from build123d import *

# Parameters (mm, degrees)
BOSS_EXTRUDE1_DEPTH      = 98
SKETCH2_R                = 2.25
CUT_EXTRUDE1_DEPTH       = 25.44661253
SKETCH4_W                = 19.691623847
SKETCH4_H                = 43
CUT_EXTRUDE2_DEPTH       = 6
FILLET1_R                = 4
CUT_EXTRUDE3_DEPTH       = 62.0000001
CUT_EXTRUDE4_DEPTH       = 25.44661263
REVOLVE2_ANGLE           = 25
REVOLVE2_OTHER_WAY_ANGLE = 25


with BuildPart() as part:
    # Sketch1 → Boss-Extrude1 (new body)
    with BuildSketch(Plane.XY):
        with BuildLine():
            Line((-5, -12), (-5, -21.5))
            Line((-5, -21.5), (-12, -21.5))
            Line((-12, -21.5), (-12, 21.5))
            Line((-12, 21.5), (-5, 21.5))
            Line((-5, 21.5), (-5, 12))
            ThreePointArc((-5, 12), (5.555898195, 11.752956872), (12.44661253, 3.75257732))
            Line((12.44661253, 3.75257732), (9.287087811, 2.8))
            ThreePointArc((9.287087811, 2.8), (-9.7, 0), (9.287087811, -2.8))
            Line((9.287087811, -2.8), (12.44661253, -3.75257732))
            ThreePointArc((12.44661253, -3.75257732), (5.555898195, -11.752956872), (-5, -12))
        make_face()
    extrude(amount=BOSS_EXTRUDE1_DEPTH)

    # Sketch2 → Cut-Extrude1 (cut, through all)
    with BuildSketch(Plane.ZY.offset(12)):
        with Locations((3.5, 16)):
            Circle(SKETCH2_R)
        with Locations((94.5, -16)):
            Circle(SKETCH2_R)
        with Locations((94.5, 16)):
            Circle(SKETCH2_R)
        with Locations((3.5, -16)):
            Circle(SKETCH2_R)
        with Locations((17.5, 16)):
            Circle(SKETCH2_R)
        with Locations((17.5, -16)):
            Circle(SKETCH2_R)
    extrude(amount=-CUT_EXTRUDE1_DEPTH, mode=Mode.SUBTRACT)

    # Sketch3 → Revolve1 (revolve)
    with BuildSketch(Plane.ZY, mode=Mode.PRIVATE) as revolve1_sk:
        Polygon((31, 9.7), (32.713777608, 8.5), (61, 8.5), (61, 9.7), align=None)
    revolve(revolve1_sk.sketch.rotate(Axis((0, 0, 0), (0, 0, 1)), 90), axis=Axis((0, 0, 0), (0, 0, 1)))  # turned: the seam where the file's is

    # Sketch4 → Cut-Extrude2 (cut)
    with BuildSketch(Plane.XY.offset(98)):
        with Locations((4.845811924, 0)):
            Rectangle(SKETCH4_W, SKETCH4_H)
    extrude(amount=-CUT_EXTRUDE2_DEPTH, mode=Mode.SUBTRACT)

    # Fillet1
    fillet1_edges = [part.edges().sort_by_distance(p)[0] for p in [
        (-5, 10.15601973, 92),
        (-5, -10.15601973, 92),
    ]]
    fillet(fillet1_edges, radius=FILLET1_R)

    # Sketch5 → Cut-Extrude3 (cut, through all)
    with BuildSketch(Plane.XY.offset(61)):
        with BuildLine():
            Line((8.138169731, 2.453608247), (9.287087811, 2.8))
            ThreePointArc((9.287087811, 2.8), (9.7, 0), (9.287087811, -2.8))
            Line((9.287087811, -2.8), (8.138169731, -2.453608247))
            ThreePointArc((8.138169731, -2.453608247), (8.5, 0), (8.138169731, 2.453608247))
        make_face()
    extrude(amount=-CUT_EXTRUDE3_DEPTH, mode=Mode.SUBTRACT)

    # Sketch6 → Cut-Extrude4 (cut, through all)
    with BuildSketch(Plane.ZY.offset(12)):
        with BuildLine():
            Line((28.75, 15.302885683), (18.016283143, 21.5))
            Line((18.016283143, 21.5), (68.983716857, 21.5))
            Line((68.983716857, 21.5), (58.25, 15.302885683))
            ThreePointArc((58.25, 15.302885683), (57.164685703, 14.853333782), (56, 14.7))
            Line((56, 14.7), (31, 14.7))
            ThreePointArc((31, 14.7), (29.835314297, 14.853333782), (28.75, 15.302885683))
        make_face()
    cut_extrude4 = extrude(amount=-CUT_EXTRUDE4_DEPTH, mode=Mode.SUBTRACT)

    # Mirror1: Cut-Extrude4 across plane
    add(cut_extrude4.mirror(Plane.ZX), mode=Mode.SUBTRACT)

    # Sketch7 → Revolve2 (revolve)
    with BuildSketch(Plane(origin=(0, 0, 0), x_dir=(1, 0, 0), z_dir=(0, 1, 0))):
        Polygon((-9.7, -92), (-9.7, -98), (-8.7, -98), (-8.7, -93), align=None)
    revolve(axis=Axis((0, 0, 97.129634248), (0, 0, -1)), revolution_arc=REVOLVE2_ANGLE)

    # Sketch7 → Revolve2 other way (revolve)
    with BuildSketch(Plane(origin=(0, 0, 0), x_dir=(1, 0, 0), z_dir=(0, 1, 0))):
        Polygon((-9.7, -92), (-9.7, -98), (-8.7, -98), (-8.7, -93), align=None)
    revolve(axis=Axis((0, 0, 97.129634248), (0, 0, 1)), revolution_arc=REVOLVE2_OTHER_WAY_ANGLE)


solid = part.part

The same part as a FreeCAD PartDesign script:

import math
import FreeCAD as App
import Part
import Sketcher
from FreeCAD import Vector
Q = App.Units.Quantity


def edges_at(feature, points):
    """Names of the edges that pass closest to the given points."""
    edges = feature.Shape.Edges
    near = lambda p: min(range(len(edges)), key=lambda i: edges[i].distToShape(Part.Vertex(*p))[0])
    return sorted({f"Edge{near(p) + 1}" for p in points})


def add_polygon(sketch, points):
    """Adds a closed chain of lines whose ends are joined by coincident constraints."""
    first, n = sketch.GeometryCount, len(points)
    for a, b in zip(points, points[1:] + points[:1]):
        sketch.addGeometry(Part.LineSegment(App.Vector(*a, 0), App.Vector(*b, 0)), False)
    for i in range(n):
        sketch.addConstraint(Sketcher.Constraint("Coincident", first + i, 2, first + (i + 1) % n, 1))

doc = App.newDocument("Part")
body = doc.addObject("PartDesign::Body", "Body")

# Sketch on XY plane
sketch1 = doc.addObject("Sketcher::SketchObject", "Sketch")
body.addObject(sketch1)
sketch1.AttachmentSupport = (doc.XY_Plane, [""])
sketch1.MapMode = "FlatFace"
sketch1.addGeometry([
    Part.LineSegment(Vector(-5, -21.5, 0), Vector(-5, -12, 0)),  # 0
    Part.ArcOfCircle(Part.Circle(Vector(0, 0, 0), Vector(0, 0, 1), 13), math.radians(-113), math.radians(-17)),  # 1
    Part.LineSegment(Vector(12.4, -3.8, 0), Vector(9.3, -2.8, 0)),  # 2
    Part.ArcOfCircle(Part.Circle(Vector(0, 0, 0), Vector(0, 0, 1), 9.7), math.radians(17), math.radians(343)),  # 3
    Part.LineSegment(Vector(9.3, 2.8, 0), Vector(12.4, 3.8, 0)),  # 4
    Part.ArcOfCircle(Part.Circle(Vector(0, 0, 0), Vector(0, 0, 1), 13), math.radians(17), math.radians(113)),  # 5
    Part.LineSegment(Vector(-5, 12, 0), Vector(-5, 21.5, 0)),  # 6
    Part.LineSegment(Vector(-5, 21.5, 0), Vector(-12, 21.5, 0)),  # 7
    Part.LineSegment(Vector(-12, 21.5, 0), Vector(-12, -21.5, 0)),  # 8
    Part.LineSegment(Vector(-12, -21.5, 0), Vector(-5, -21.5, 0)),  # 9
], False)
sketch1.addConstraint([
    Sketcher.Constraint("Coincident", 0, 2, 1, 1),
    Sketcher.Constraint("Coincident", 1, 2, 2, 1),
    Sketcher.Constraint("Coincident", 2, 2, 3, 2),
    Sketcher.Constraint("Coincident", 3, 1, 4, 1),
    Sketcher.Constraint("Coincident", 4, 2, 5, 1),
    Sketcher.Constraint("Coincident", 5, 2, 6, 1),
    Sketcher.Constraint("Coincident", 6, 2, 7, 1),
    Sketcher.Constraint("Coincident", 7, 2, 8, 1),
    Sketcher.Constraint("Coincident", 8, 2, 9, 1),
    Sketcher.Constraint("Coincident", 9, 2, 0, 1),
    Sketcher.Constraint("Vertical", 0),
    Sketcher.Constraint("Vertical", 6),
    Sketcher.Constraint("Horizontal", 7),
    Sketcher.Constraint("Vertical", 8),
    Sketcher.Constraint("Horizontal", 9),
    Sketcher.Constraint("Coincident", 1, 3, -1, 1),
    Sketcher.Constraint("Coincident", 3, 3, -1, 1),
    Sketcher.Constraint("Coincident", 5, 3, -1, 1),
    Sketcher.Constraint("Equal", 1, 5),
    Sketcher.Constraint("Symmetric", 6, 2, 9, 2, -1),
    Sketcher.Constraint("Vertical", 2, 2, 3, 1),
    Sketcher.Constraint("Vertical", 1, 2, 4, 2),
    Sketcher.Constraint("Radius", 1, 13.0),
    Sketcher.Constraint("Radius", 3, 9.7),
    Sketcher.Constraint("DistanceX", 7, 2, 7, 1, 7.0),
    Sketcher.Constraint("DistanceY", 8, 2, 8, 1, 43.0),
    Sketcher.Constraint("DistanceY", 0, 1, 0, 2, 9.5),
    Sketcher.Constraint("DistanceY", 2, 2, -1, 1, 2.8),
    Sketcher.Constraint("DistanceX", -1, 1, 1, 2, 12.446613),
])
pad1 = doc.addObject("PartDesign::Pad", "Pad")
body.addObject(pad1)
pad1.Profile = sketch1
pad1.Length = 98

# Sketch on YZ plane
sketch2 = doc.addObject("Sketcher::SketchObject", "Sketch001")
body.addObject(sketch2)
sketch2.AttachmentSupport = (doc.YZ_Plane, [""])
sketch2.MapMode = "FlatFace"
sketch2.AttachmentOffset = App.Placement(Vector(0, 0, -12), App.Rotation())
sketch2.addGeometry([
    Part.Circle(Vector(16, 3.5, 0), Vector(0, 0, 1), 2.2),  # 0
    Part.Circle(Vector(-16, 94.5, 0), Vector(0, 0, 1), 2.2),  # 1
    Part.Circle(Vector(16, 94.5, 0), Vector(0, 0, 1), 2.2),  # 2
    Part.Circle(Vector(-16, 3.5, 0), Vector(0, 0, 1), 2.2),  # 3
    Part.Circle(Vector(16, 17.5, 0), Vector(0, 0, 1), 2.2),  # 4
    Part.Circle(Vector(-16, 17.5, 0), Vector(0, 0, 1), 2.2),  # 5
], False)
sketch2.addConstraint([
    Sketcher.Constraint("Equal", 0, 1),
    Sketcher.Constraint("Equal", 1, 2),
    Sketcher.Constraint("Equal", 2, 3),
    Sketcher.Constraint("Equal", 3, 4),
    Sketcher.Constraint("Equal", 4, 5),
    Sketcher.Constraint("Symmetric", 1, 3, 2, 3, -2),
    Sketcher.Constraint("Symmetric", 0, 3, 3, 3, -2),
    Sketcher.Constraint("Symmetric", 4, 3, 5, 3, -2),
    Sketcher.Constraint("Vertical", 0, 3, 2, 3),
    Sketcher.Constraint("Vertical", 2, 3, 4, 3),
    Sketcher.Constraint("Diameter", 0, 4.5),
    Sketcher.Constraint("DistanceX", -1, 1, 0, 3, 16.0),
    Sketcher.Constraint("DistanceY", 0, 3, 1, 3, 91.0),
    Sketcher.Constraint("DistanceY", 0, 3, 4, 3, 14.0),
    Sketcher.Constraint("DistanceY", -1, 1, 0, 3, 3.5),
])
pocket1 = doc.addObject("PartDesign::Pocket", "Pocket")
body.addObject(pocket1)
pocket1.Profile = sketch2
pocket1.Type = "ThroughAll"
pocket1.Reversed = True

# Sketch on YZ plane
sketch3 = doc.addObject("Sketcher::SketchObject", "Sketch002")
body.addObject(sketch3)
sketch3.AttachmentSupport = (doc.YZ_Plane, [""])
sketch3.MapMode = "FlatFace"
add_polygon(sketch3, [(9.7, 31), (8.5, 32.7), (8.5, 61), (9.7, 61)])  # lines 0-3
sketch3.addConstraint([
    Sketcher.Constraint("Vertical", 1),
    Sketcher.Constraint("Horizontal", 2),
    Sketcher.Constraint("Vertical", 3),
    Sketcher.Constraint("DistanceY", 3, 2, 3, 1, 30.0),
    Sketcher.Constraint("Angle", 0, Q("125 deg")),
    Sketcher.Constraint("DistanceX", 2, 1, 2, 2, 1.2),
    Sketcher.Constraint("DistanceY", -1, 1, 1, 2, 61.0),
    Sketcher.Constraint("DistanceX", -1, 1, 0, 2, 8.5),
])
revolution = doc.addObject("PartDesign::Revolution", "Revolution")
body.addObject(revolution)
revolution.Profile = sketch3
revolution.ReferenceAxis = (sketch3, ["V_Axis"])
revolution.Angle = 360

# Sketch on XY plane
sketch4 = doc.addObject("Sketcher::SketchObject", "Sketch003")
body.addObject(sketch4)
sketch4.AttachmentSupport = (doc.XY_Plane, [""])
sketch4.MapMode = "FlatFace"
sketch4.AttachmentOffset = App.Placement(Vector(0, 0, 98), App.Rotation())
add_polygon(sketch4, [(-5, 22), (-5, -22), (15, -22), (15, 22)])  # lines 0-3
sketch4.addConstraint([
    Sketcher.Constraint("Vertical", 0),
    Sketcher.Constraint("Horizontal", 1),
    Sketcher.Constraint("Vertical", 2),
    Sketcher.Constraint("Horizontal", 3),
    Sketcher.Constraint("DistanceY", 0, 2, 0, 1, 43.0),
    Sketcher.Constraint("DistanceX", 0, 2, -1, 1, 5.0),
    Sketcher.Constraint("DistanceY", 0, 2, -1, 1, 21.5),
    Sketcher.Constraint("DistanceX", 1, 1, 1, 2, 19.691624),
])
pocket2 = doc.addObject("PartDesign::Pocket", "Pocket001")
body.addObject(pocket2)
pocket2.Profile = sketch4
pocket2.Length = 6
doc.recompute()

fillet = doc.addObject("PartDesign::Fillet", "Fillet")
body.addObject(fillet)
fillet.Base = (pocket2, edges_at(pocket2, [(-5, 10.156, 92), (-5, -10.156, 92)]))
fillet.Radius = 4

# Sketch on XY plane
sketch5 = doc.addObject("Sketcher::SketchObject", "Sketch004")
body.addObject(sketch5)
sketch5.AttachmentSupport = (doc.XY_Plane, [""])
sketch5.MapMode = "FlatFace"
sketch5.AttachmentOffset = App.Placement(Vector(0, 0, 61), App.Rotation())
sketch5.addGeometry([
    Part.LineSegment(Vector(9.3, 2.8, 0), Vector(8.1, 2.5, 0)),
    Part.ArcOfCircle(Part.Circle(Vector(0, 0, 0), Vector(0, 0, 1), 8.5), math.radians(-17), math.radians(17)),
    Part.LineSegment(Vector(8.1, -2.5, 0), Vector(9.3, -2.8, 0)),
    Part.ArcOfCircle(Part.Circle(Vector(0, 0, 0), Vector(0, 0, 1), 9.7), math.radians(-17), math.radians(17)),
], False)
sketch5.addConstraint([
    Sketcher.Constraint("Coincident", 0, 2, 1, 2),
    Sketcher.Constraint("Coincident", 1, 1, 2, 1),
    Sketcher.Constraint("Coincident", 2, 2, 3, 1),
    Sketcher.Constraint("Coincident", 3, 2, 0, 1),
    Sketcher.Constraint("Coincident", 1, 3, -1, 1),
    Sketcher.Constraint("Coincident", 3, 3, -1, 1),
    Sketcher.Constraint("Vertical", 0, 2, 1, 1),
    Sketcher.Constraint("Vertical", 2, 2, 3, 2),
    Sketcher.Constraint("Radius", 1, 8.5),
    Sketcher.Constraint("Radius", 3, 9.7),
    Sketcher.Constraint("DistanceY", 2, 2, -1, 1, 2.8),
    Sketcher.Constraint("DistanceX", -1, 1, 0, 2, 8.13817),
])
pocket3 = doc.addObject("PartDesign::Pocket", "Pocket002")
body.addObject(pocket3)
pocket3.Profile = sketch5
pocket3.Type = "ThroughAll"

# Sketch on YZ plane
sketch6 = doc.addObject("Sketcher::SketchObject", "Sketch005")
body.addObject(sketch6)
sketch6.AttachmentSupport = (doc.YZ_Plane, [""])
sketch6.MapMode = "FlatFace"
sketch6.AttachmentOffset = App.Placement(Vector(0, 0, -12), App.Rotation())
sketch6.addGeometry([
    Part.LineSegment(Vector(21.5, 18, 0), Vector(15.3, 28.8, 0)),  # 0
    Part.ArcOfCircle(Part.Circle(Vector(19.2, 31, 0), Vector(0, 0, 1), 4.5), math.radians(-180), math.radians(-150)),  # 1
    Part.LineSegment(Vector(14.7, 31, 0), Vector(14.7, 56, 0)),  # 2
    Part.ArcOfCircle(Part.Circle(Vector(19.2, 56, 0), Vector(0, 0, 1), 4.5), math.radians(150), math.radians(180)),  # 3
    Part.LineSegment(Vector(15.3, 58.2, 0), Vector(21.5, 69, 0)),  # 4
    Part.LineSegment(Vector(21.5, 69, 0), Vector(21.5, 18, 0)),  # 5
], False)
sketch6.addConstraint([
    Sketcher.Constraint("Tangent", 0, 2, 1, 2),
    Sketcher.Constraint("Tangent", 1, 1, 2, 1),
    Sketcher.Constraint("Tangent", 2, 2, 3, 2),
    Sketcher.Constraint("Tangent", 3, 1, 4, 1),
    Sketcher.Constraint("Coincident", 4, 2, 5, 1),
    Sketcher.Constraint("Coincident", 5, 2, 0, 1),
    Sketcher.Constraint("Vertical", 2),
    Sketcher.Constraint("Vertical", 5),
    Sketcher.Constraint("Equal", 1, 3),
    Sketcher.Constraint("Vertical", 0, 2, 3, 1),
    Sketcher.Constraint("Radius", 1, 4.5),
    Sketcher.Constraint("DistanceY", 2, 1, 2, 2, 25.0),
    Sketcher.Constraint("Angle", 0, Q("120 deg")),
    Sketcher.Constraint("DistanceY", -1, 1, 1, 3, 31.0),
    Sketcher.Constraint("DistanceX", -1, 1, 1, 3, 19.2),
    Sketcher.Constraint("DistanceX", -1, 1, 4, 2, 21.5),
])
pocket4 = doc.addObject("PartDesign::Pocket", "Pocket003")
body.addObject(pocket4)
pocket4.Profile = sketch6
pocket4.Type = "ThroughAll"
pocket4.Reversed = True
doc.recompute()

mirrored = doc.addObject("PartDesign::Mirrored", "Mirrored")
body.addObject(mirrored)
mirrored.Originals = [pocket4]
mirrored.MirrorPlane = (doc.XZ_Plane, [""])
body.Tip = mirrored

# Sketch on XZ plane
sketch7 = doc.addObject("Sketcher::SketchObject", "Sketch006")
body.addObject(sketch7)
sketch7.AttachmentSupport = (doc.XZ_Plane, [""])
sketch7.MapMode = "FlatFace"
add_polygon(sketch7, [(-9.7, 92), (-9.7, 98), (-8.7, 98), (-8.7, 93)])  # lines 0-3
sketch7.addConstraint([
    Sketcher.Constraint("Vertical", 0),
    Sketcher.Constraint("Horizontal", 1),
    Sketcher.Constraint("Vertical", 2),
    Sketcher.Constraint("DistanceX", 1, 1, 1, 2, 1.0),
    Sketcher.Constraint("DistanceY", 0, 1, 0, 2, 6.0),
    Sketcher.Constraint("DistanceY", 2, 2, 2, 1, 5.0),
    Sketcher.Constraint("DistanceY", -1, 1, 0, 2, 98.0),
    Sketcher.Constraint("DistanceX", 0, 2, -1, 1, 9.7),
])
revolution2 = doc.addObject("PartDesign::Revolution", "Revolution001")
body.addObject(revolution2)
revolution2.Profile = sketch7
revolution2.ReferenceAxis = (sketch7, ["V_Axis"])
revolution2.Angle = 25
revolution2.Reversed = True

# Sketch on XZ plane
sketch8 = doc.addObject("Sketcher::SketchObject", "Sketch007")
body.addObject(sketch8)
sketch8.AttachmentSupport = (doc.XZ_Plane, [""])
sketch8.MapMode = "FlatFace"
add_polygon(sketch8, [(-9.7, 92), (-9.7, 98), (-8.7, 98), (-8.7, 93)])  # lines 0-3
sketch8.addConstraint([
    Sketcher.Constraint("Vertical", 0),
    Sketcher.Constraint("Horizontal", 1),
    Sketcher.Constraint("Vertical", 2),
    Sketcher.Constraint("DistanceX", 1, 1, 1, 2, 1.0),
    Sketcher.Constraint("DistanceY", 0, 1, 0, 2, 6.0),
    Sketcher.Constraint("DistanceY", 2, 2, 2, 1, 5.0),
    Sketcher.Constraint("DistanceY", -1, 1, 0, 2, 98.0),
    Sketcher.Constraint("DistanceX", 0, 2, -1, 1, 9.7),
])
revolution3 = doc.addObject("PartDesign::Revolution", "Revolution002")
body.addObject(revolution3)
revolution3.Profile = sketch8
revolution3.ReferenceAxis = (sketch8, ["V_Axis"])
revolution3.Angle = 25

doc.recompute()
